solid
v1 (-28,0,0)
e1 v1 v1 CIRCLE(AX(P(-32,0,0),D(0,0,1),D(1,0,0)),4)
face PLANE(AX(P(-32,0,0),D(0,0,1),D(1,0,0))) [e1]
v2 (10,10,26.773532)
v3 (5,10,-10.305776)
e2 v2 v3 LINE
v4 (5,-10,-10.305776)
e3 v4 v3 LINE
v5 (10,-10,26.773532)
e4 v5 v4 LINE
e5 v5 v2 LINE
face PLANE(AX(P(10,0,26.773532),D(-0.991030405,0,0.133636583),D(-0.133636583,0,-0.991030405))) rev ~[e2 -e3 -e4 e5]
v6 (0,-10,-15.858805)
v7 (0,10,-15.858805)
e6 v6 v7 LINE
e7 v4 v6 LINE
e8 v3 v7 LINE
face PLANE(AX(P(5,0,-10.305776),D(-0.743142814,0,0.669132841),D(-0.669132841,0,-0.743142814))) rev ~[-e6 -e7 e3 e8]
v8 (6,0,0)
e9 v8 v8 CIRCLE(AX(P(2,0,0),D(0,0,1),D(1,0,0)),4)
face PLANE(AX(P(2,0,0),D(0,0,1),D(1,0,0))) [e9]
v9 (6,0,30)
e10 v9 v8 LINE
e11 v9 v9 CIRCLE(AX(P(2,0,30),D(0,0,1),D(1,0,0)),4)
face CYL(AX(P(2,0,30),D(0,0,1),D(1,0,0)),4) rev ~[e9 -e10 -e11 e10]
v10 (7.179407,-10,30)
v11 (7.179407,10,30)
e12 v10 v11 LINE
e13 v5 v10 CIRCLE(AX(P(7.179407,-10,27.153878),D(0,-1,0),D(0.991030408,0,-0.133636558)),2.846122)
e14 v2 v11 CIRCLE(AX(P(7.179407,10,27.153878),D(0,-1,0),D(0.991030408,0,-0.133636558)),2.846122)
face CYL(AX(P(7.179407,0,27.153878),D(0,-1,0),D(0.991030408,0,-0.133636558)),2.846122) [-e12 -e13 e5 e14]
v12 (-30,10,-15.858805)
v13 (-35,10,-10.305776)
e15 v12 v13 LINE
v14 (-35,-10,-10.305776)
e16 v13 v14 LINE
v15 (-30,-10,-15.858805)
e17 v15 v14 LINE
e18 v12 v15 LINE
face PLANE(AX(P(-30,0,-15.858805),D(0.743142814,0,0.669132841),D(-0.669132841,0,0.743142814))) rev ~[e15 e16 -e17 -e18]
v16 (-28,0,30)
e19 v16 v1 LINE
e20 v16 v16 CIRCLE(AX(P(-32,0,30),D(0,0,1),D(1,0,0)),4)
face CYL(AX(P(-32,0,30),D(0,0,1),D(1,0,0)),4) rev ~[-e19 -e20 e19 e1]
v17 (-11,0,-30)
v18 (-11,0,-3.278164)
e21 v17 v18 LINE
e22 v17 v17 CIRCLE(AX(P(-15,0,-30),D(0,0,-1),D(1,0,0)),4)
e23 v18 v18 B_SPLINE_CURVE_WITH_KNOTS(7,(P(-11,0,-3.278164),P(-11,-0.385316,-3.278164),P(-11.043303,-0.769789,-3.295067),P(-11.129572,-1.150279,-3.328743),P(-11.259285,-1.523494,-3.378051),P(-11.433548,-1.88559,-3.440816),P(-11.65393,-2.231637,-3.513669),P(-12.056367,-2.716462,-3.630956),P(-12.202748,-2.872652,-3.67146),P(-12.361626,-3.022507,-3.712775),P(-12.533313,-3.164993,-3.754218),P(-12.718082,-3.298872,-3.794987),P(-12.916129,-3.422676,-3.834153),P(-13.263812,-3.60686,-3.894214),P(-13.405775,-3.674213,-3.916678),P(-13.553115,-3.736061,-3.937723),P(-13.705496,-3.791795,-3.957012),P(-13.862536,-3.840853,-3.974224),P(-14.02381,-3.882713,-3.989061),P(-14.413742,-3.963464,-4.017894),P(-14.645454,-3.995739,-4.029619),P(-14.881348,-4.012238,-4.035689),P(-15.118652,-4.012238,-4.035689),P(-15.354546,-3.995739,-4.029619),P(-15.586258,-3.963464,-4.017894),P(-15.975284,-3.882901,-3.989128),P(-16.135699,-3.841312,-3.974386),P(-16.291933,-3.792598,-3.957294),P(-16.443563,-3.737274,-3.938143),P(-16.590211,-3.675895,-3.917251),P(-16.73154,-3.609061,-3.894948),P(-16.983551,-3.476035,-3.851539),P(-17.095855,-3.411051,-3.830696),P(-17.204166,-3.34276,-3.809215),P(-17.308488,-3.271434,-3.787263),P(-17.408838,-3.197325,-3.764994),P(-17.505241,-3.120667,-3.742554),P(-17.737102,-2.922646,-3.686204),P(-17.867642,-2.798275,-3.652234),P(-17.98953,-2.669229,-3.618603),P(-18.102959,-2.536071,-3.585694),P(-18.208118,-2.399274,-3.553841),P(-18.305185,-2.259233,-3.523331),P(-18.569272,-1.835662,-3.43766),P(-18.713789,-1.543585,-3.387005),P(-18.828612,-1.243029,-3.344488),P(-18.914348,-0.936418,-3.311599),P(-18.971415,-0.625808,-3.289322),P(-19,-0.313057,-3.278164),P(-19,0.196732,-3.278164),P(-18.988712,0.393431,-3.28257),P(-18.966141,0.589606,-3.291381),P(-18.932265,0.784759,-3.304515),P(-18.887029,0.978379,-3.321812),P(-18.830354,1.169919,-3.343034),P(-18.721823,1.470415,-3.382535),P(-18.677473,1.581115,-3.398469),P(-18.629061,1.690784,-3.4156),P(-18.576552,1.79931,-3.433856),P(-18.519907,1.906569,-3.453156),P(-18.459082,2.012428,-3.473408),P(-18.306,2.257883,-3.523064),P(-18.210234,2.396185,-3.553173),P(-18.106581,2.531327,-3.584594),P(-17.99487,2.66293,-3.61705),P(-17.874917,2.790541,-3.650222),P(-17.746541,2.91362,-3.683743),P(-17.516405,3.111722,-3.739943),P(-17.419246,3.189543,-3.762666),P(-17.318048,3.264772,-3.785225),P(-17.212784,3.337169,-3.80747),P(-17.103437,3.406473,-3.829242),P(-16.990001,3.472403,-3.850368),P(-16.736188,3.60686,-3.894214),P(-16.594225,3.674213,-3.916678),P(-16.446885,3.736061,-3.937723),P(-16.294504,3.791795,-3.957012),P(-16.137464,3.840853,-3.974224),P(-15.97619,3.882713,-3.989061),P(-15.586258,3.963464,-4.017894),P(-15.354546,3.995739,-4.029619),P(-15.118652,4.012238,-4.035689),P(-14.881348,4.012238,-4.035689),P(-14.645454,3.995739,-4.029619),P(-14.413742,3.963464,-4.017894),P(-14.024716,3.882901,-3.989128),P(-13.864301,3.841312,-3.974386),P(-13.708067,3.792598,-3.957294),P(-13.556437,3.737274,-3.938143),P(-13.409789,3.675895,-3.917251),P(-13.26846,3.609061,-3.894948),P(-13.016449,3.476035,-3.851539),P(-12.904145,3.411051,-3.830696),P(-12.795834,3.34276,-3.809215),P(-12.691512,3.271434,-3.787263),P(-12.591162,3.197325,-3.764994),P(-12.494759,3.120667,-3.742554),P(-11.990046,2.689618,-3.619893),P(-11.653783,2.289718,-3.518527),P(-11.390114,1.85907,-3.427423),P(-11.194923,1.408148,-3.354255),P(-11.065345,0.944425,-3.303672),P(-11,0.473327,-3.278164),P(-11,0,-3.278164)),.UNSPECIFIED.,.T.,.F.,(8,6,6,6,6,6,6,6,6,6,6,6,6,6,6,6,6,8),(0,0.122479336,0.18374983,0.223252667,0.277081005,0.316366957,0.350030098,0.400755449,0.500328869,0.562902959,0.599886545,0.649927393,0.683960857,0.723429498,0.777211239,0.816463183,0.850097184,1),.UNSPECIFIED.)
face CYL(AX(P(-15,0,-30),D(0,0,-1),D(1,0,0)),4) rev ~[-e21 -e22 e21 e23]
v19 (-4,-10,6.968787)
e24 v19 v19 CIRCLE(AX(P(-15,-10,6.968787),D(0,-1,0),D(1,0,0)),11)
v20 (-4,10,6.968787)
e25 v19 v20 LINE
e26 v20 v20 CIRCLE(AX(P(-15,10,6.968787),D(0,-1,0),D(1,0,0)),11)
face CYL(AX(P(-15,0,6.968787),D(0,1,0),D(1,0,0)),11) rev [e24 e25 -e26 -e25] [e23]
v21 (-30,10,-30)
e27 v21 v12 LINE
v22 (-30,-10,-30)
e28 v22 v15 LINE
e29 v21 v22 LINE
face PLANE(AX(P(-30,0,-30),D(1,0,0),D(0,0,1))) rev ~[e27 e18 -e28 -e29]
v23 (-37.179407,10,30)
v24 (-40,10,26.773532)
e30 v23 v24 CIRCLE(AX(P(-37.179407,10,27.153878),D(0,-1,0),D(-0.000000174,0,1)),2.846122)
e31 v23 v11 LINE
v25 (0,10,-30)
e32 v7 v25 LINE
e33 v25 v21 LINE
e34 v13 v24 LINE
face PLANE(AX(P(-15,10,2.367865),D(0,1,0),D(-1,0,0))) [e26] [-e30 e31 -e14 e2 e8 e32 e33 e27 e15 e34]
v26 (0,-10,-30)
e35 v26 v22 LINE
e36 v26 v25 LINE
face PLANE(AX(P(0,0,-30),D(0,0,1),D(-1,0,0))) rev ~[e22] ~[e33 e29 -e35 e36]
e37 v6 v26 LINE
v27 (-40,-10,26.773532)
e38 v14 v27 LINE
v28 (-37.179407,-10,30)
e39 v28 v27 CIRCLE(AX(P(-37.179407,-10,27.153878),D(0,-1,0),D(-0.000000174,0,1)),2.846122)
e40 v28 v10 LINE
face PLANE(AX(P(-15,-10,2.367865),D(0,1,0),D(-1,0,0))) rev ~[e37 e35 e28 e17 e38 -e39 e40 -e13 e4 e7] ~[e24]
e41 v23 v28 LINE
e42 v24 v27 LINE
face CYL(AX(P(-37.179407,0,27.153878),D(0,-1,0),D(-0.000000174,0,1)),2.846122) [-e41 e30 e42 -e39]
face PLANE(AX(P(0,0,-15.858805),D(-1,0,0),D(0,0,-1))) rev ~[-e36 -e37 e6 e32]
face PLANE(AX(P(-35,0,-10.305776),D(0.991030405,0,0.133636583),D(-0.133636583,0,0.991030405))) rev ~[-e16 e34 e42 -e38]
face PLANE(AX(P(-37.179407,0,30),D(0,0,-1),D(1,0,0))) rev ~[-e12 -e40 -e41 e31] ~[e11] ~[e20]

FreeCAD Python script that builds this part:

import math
import FreeCAD as App
import Part
import Sketcher

V = App.Vector

doc = App.newDocument("Part")
params = doc.addObject("Spreadsheet::Sheet", "Params")
for row, (alias, value) in enumerate([
    ("sketch1_diameter", "8 mm"),
    ("pad1_length", "30 mm"),
    ("sketch2_diameter", "8 mm"),
    ("pad2_length", "30 mm"),
    ("sketch3_diameter", "22 mm"),
    ("sketch3_width", "30 mm"),
    ("pad3_length", "20 mm"),
], start=1):
    params.set(f"A{row}", alias)
    params.set(f"B{row}", "=" + value)
    params.setAlias(f"B{row}", alias)

body = doc.addObject("PartDesign::Body", "Body")
body.AllowCompound = True

sketch1 = body.newObject("Sketcher::SketchObject", "Sketch")
sketch1.AttachmentSupport = (doc.getObject("XY_Plane"), [""])
sketch1.MapMode = "FlatFace"
sketch1.AttachmentOffset = App.Placement(V(0, 0, 30), App.Rotation())
sketch1.addGeometry(Part.Circle(V(2, 0, 0), V(0, 0, 1), 4), False)
sketch1.addGeometry(Part.Circle(V(-32, 0, 0), V(0, 0, 1), 4), False)
sketch1.addConstraint(Sketcher.Constraint("Equal", 0, 1))
sketch1.addConstraint(Sketcher.Constraint("PointOnObject", 0, 3, -1))
sketch1.addConstraint(Sketcher.Constraint("PointOnObject", 1, 3, -1))
sketch1.addConstraint(Sketcher.Constraint("Diameter", 0, 8.0))
sketch1.addConstraint(Sketcher.Constraint("DistanceX", -1, 1, 0, 3, 2.0))
sketch1.addConstraint(Sketcher.Constraint("DistanceX", 1, 3, -1, 1, 32.0))
sketch1.setExpression("Constraints[3]", "Params.sketch1_diameter")
pad1 = body.newObject("PartDesign::Pad", "Pad")
pad1.Profile = sketch1
pad1.setExpression("Length", "Params.pad1_length")
pad1.Reversed = True
body2 = doc.addObject("PartDesign::Body", "Body001")

sketch2 = body2.newObject("Sketcher::SketchObject", "Sketch001")
sketch2.AttachmentSupport = (doc.getObject("XY_Plane001"), [""])
sketch2.MapMode = "FlatFace"
sketch2.AttachmentOffset = App.Placement(V(0, 0, -30), App.Rotation())
sketch2.addGeometry(Part.Circle(V(-15, 0, 0), V(0, 0, 1), 4), False)
sketch2.addConstraint(Sketcher.Constraint("PointOnObject", 0, 3, -1))
sketch2.addConstraint(Sketcher.Constraint("Diameter", 0, 8.0))
sketch2.addConstraint(Sketcher.Constraint("DistanceX", 0, 3, -1, 1, 15.0))
sketch2.setExpression("Constraints[1]", "Params.sketch2_diameter")
pad2 = body2.newObject("PartDesign::Pad", "Pad001")
pad2.Profile = sketch2
pad2.setExpression("Length", "Params.pad2_length")
body3 = doc.addObject("PartDesign::Body", "Body002")

sketch3 = body3.newObject("Sketcher::SketchObject", "Sketch002")
sketch3.AttachmentSupport = (doc.getObject("XZ_Plane002"), [""])
sketch3.MapMode = "FlatFace"
sketch3.addGeometry(Part.LineSegment(V(7.2, 30, 0), V(-37.2, 30, 0)), False)
sketch3.addGeometry(Part.ArcOfCircle(Part.Circle(V(-37.2, 27.2, 0), V(0, 0, 1), 2.8), math.radians(90), math.radians(188)), False)
sketch3.addGeometry(Part.LineSegment(V(-40, 26.8, 0), V(-35, -10.3, 0)), False)
sketch3.addGeometry(Part.LineSegment(V(-35, -10.3, 0), V(-30, -15.9, 0)), False)
sketch3.addGeometry(Part.LineSegment(V(-30, -15.9, 0), V(-30, -30, 0)), False)
sketch3.addGeometry(Part.LineSegment(V(-30, -30, 0), V(0, -30, 0)), False)
sketch3.addGeometry(Part.LineSegment(V(0, -30, 0), V(0, -15.9, 0)), False)
sketch3.addGeometry(Part.LineSegment(V(0, -15.9, 0), V(5, -10.3, 0)), False)
sketch3.addGeometry(Part.LineSegment(V(5, -10.3, 0), V(10, 26.8, 0)), False)
sketch3.addGeometry(Part.ArcOfCircle(Part.Circle(V(7.2, 27.2, 0), V(0, 0, 1), 2.8), math.radians(-8), math.radians(90)), False)
sketch3.addGeometry(Part.Circle(V(-15, 7, 0), V(0, 0, 1), 11), False)
sketch3.addConstraint(Sketcher.Constraint("Tangent", 0, 2, 1, 1))
sketch3.addConstraint(Sketcher.Constraint("Tangent", 1, 2, 2, 1))
sketch3.addConstraint(Sketcher.Constraint("Coincident", 2, 2, 3, 1))
sketch3.addConstraint(Sketcher.Constraint("Coincident", 3, 2, 4, 1))
sketch3.addConstraint(Sketcher.Constraint("Coincident", 4, 2, 5, 1))
sketch3.addConstraint(Sketcher.Constraint("Coincident", 5, 2, 6, 1))
sketch3.addConstraint(Sketcher.Constraint("Coincident", 6, 2, 7, 1))
sketch3.addConstraint(Sketcher.Constraint("Coincident", 7, 2, 8, 1))
sketch3.addConstraint(Sketcher.Constraint("Tangent", 8, 2, 9, 1))
sketch3.addConstraint(Sketcher.Constraint("Tangent", 9, 2, 0, 1))
sketch3.addConstraint(Sketcher.Constraint("Horizontal", 0))
sketch3.addConstraint(Sketcher.Constraint("Vertical", 4))
sketch3.addConstraint(Sketcher.Constraint("Horizontal", 5))
sketch3.addConstraint(Sketcher.Constraint("Vertical", 6))
sketch3.addConstraint(Sketcher.Constraint("Equal", 1, 9))
sketch3.addConstraint(Sketcher.Constraint("PointOnObject", 5, 2, -2))
sketch3.addConstraint(Sketcher.Constraint("Horizontal", 3, 2, 6, 2))
sketch3.addConstraint(Sketcher.Constraint("Horizontal", 2, 2, 7, 2))
sketch3.addConstraint(Sketcher.Constraint("Horizontal", 1, 2, 8, 2))
sketch3.addConstraint(Sketcher.Constraint("Equal", 3, 7))
sketch3.addConstraint(Sketcher.Constraint("Diameter", 10, 22.0))
sketch3.addConstraint(Sketcher.Constraint("DistanceX", 5, 1, 5, 2, 30.0))
sketch3.addConstraint(Sketcher.Constraint("DistanceX", 10, 3, -1, 1, 15.0))
sketch3.addConstraint(Sketcher.Constraint("DistanceY", -1, 1, 0, 2, 30.0))
sketch3.addConstraint(Sketcher.Constraint("DistanceX", 1, 2, -1, 1, 40.0))
sketch3.addConstraint(Sketcher.Constraint("DistanceX", 2, 2, -1, 1, 35.0))
sketch3.addConstraint(Sketcher.Constraint("DistanceY", 4, 2, -1, 1, 30.0))
sketch3.addConstraint(Sketcher.Constraint("Radius", 1, 2.846122))
sketch3.addConstraint(Sketcher.Constraint("DistanceY", 4, 2, 4, 1, 14.141195))
sketch3.addConstraint(Sketcher.Constraint("DistanceY", -1, 1, 8, 2, 26.773532))
sketch3.addConstraint(Sketcher.Constraint("DistanceY", 10, 3, 1, 3, 20.185091))
sketch3.setExpression("Constraints[20]", "Params.sketch3_diameter")
sketch3.setExpression("Constraints[21]", "Params.sketch3_width")
pad3 = body3.newObject("PartDesign::Pad", "Pad002")
pad3.Profile = sketch3
pad3.setExpression("Length", "Params.pad3_length")
pad3.Midplane = True
doc.recompute()

boolean = body3.newObject("PartDesign::Boolean", "Boolean")
boolean.Type = "Cut"
boolean.addObjects([body2])
doc.recompute()

boolean2 = body3.newObject("PartDesign::Boolean", "Boolean001")
boolean2.Type = "Cut"
boolean2.addObjects([body])

doc.recompute()
